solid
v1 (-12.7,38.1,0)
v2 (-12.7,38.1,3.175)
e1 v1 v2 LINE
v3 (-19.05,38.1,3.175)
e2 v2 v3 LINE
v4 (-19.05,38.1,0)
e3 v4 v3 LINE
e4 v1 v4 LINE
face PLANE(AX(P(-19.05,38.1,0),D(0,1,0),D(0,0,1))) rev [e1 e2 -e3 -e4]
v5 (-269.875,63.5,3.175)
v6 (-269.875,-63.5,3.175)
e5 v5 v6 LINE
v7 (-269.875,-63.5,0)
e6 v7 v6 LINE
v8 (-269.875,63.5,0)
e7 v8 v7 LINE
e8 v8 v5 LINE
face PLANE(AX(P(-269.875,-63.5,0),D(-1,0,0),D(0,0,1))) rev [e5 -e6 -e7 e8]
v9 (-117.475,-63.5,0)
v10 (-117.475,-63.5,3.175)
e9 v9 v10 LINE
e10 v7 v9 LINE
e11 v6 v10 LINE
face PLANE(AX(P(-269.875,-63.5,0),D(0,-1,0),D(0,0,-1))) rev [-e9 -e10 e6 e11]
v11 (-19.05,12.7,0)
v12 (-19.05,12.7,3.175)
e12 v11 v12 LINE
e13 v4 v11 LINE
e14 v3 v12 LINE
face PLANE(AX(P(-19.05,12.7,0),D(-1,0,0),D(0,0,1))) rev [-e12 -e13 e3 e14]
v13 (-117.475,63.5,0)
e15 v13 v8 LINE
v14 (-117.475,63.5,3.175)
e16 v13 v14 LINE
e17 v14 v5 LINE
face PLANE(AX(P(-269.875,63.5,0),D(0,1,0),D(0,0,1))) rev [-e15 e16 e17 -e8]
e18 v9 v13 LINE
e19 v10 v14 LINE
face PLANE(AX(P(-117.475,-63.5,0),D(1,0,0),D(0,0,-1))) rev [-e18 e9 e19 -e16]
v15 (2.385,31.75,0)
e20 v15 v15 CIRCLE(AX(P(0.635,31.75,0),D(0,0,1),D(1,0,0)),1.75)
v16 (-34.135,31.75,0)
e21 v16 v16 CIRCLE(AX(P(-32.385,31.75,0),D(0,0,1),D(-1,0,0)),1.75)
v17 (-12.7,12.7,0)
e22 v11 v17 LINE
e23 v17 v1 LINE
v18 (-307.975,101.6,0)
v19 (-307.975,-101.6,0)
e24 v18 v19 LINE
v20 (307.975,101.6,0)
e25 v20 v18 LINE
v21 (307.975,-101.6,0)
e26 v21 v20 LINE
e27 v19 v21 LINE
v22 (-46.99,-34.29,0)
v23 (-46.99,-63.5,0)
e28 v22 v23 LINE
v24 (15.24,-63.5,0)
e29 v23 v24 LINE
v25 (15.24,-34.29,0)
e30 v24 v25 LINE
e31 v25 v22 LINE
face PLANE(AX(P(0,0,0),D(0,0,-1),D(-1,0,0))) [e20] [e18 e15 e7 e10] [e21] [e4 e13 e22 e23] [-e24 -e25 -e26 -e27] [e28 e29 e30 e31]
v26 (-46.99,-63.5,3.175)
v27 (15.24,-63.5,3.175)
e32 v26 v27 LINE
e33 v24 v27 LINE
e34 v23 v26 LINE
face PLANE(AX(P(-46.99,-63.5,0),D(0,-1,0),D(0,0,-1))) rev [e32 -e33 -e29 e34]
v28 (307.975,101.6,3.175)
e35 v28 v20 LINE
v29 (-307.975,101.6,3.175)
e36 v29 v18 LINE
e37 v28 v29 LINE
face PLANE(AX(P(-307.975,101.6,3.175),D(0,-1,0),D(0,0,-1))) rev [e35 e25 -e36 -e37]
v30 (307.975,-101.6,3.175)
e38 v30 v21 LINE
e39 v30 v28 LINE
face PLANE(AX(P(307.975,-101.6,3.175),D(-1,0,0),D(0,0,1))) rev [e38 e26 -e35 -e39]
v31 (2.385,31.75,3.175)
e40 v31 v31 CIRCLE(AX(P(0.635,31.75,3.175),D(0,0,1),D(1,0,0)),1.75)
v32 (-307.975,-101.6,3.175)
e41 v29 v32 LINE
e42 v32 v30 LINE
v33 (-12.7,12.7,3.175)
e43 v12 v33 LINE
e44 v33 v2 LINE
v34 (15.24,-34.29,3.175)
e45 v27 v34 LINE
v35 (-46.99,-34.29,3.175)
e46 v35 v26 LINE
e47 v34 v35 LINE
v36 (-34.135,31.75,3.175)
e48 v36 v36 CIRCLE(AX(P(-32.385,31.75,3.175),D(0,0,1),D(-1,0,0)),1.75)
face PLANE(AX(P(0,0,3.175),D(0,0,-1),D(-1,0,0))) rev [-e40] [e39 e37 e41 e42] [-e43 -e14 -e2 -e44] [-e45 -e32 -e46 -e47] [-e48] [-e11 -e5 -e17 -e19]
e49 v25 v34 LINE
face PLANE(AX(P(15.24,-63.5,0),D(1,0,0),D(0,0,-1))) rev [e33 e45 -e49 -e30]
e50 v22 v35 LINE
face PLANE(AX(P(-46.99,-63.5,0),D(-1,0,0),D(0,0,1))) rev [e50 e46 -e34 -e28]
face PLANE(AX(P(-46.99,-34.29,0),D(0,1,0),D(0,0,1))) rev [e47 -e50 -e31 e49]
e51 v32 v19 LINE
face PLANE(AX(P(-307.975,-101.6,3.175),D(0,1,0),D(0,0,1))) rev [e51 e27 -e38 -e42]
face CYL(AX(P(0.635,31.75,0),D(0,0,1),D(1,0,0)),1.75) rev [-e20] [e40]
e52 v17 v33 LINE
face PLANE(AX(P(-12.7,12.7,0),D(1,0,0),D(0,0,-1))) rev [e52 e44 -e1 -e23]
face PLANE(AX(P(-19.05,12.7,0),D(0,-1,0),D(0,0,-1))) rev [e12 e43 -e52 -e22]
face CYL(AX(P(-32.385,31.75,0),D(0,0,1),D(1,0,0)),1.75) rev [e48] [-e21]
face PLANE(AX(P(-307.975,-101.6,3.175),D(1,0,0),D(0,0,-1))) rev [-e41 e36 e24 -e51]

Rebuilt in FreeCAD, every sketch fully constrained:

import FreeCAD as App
import Part
import Sketcher
from FreeCAD import Vector
Q = App.Units.Quantity

doc = App.newDocument("Part")
body = doc.addObject("PartDesign::Body", "Body")

# Sketch on XY plane
sketch1 = body.newObject("Sketcher::SketchObject", "Sketch")
sketch1.AttachmentSupport = (doc.getObject("XY_Plane"), [""])
sketch1.MapMode = "FlatFace"
sketch1.addGeometry(Part.LineSegment(Vector(-308, 102, 0), Vector(-308, -102, 0)), False)
sketch1.addGeometry(Part.LineSegment(Vector(-308, -102, 0), Vector(308, -102, 0)), False)
sketch1.addGeometry(Part.LineSegment(Vector(308, -102, 0), Vector(308, 102, 0)), False)
sketch1.addGeometry(Part.LineSegment(Vector(308, 102, 0), Vector(-308, 102, 0)), False)
sketch1.addConstraint(Sketcher.Constraint("Coincident", 0, 2, 1, 1))
sketch1.addConstraint(Sketcher.Constraint("Coincident", 1, 2, 2, 1))
sketch1.addConstraint(Sketcher.Constraint("Coincident", 2, 2, 3, 1))
sketch1.addConstraint(Sketcher.Constraint("Coincident", 3, 2, 0, 1))
sketch1.addConstraint(Sketcher.Constraint("Vertical", 0))
sketch1.addConstraint(Sketcher.Constraint("Horizontal", 1))
sketch1.addConstraint(Sketcher.Constraint("Vertical", 2))
sketch1.addConstraint(Sketcher.Constraint("Horizontal", 3))
sketch1.addConstraint(Sketcher.Constraint("Symmetric", 0, 2, 2, 2, -1, 1))
sketch1.addConstraint(Sketcher.Constraint("DistanceY", 0, 2, 0, 1, Q("8 in")))
sketch1.addConstraint(Sketcher.Constraint("DistanceX", 1, 1, 1, 2, Q("24.25 in")))
pad1 = body.newObject("PartDesign::Pad", "Pad")
pad1.Profile = sketch1
pad1.Length = Q("0.125 in")

# Sketch on XY plane
sketch2 = body.newObject("Sketcher::SketchObject", "Sketch001")
sketch2.AttachmentSupport = (doc.getObject("XY_Plane"), [""])
sketch2.MapMode = "FlatFace"
sketch2.AttachmentOffset = App.Placement(Vector(0, 0, 0.125 * 25.4), App.Rotation())
sketch2.addGeometry(Part.LineSegment(Vector(-270, 64, 0), Vector(-270, -64, 0)), False)
sketch2.addGeometry(Part.LineSegment(Vector(-270, -64, 0), Vector(-117, -64, 0)), False)
sketch2.addGeometry(Part.LineSegment(Vector(-117, -64, 0), Vector(-117, 64, 0)), False)
sketch2.addGeometry(Part.LineSegment(Vector(-117, 64, 0), Vector(-270, 64, 0)), False)
sketch2.addConstraint(Sketcher.Constraint("Coincident", 0, 2, 1, 1))
sketch2.addConstraint(Sketcher.Constraint("Coincident", 1, 2, 2, 1))
sketch2.addConstraint(Sketcher.Constraint("Coincident", 2, 2, 3, 1))
sketch2.addConstraint(Sketcher.Constraint("Coincident", 3, 2, 0, 1))
sketch2.addConstraint(Sketcher.Constraint("Vertical", 0))
sketch2.addConstraint(Sketcher.Constraint("Horizontal", 1))
sketch2.addConstraint(Sketcher.Constraint("Vertical", 2))
sketch2.addConstraint(Sketcher.Constraint("Horizontal", 3))
sketch2.addConstraint(Sketcher.Constraint("DistanceX", 1, 1, 1, 2, Q("6 in")))
sketch2.addConstraint(Sketcher.Constraint("DistanceY", 0, 2, 0, 1, Q("5 in")))
sketch2.addConstraint(Sketcher.Constraint("DistanceY", 0, 2, -1, 1, Q("2.5 in")))
sketch2.addConstraint(Sketcher.Constraint("DistanceX", 0, 2, -1, 1, Q("10.625 in")))
pocket1 = body.newObject("PartDesign::Pocket", "Pocket")
pocket1.Profile = sketch2
pocket1.Type = "ThroughAll"

# Sketch on XY plane
sketch3 = body.newObject("Sketcher::SketchObject", "Sketch002")
sketch3.AttachmentSupport = (doc.getObject("XY_Plane"), [""])
sketch3.MapMode = "FlatFace"
sketch3.AttachmentOffset = App.Placement(Vector(0, 0, 0.125 * 25.4), App.Rotation())
sketch3.addGeometry(Part.LineSegment(Vector(-19, 38, 0), Vector(-19, 13, 0)), False)
sketch3.addGeometry(Part.LineSegment(Vector(-19, 13, 0), Vector(-13, 13, 0)), False)
sketch3.addGeometry(Part.LineSegment(Vector(-13, 13, 0), Vector(-13, 38, 0)), False)
sketch3.addGeometry(Part.LineSegment(Vector(-13, 38, 0), Vector(-19, 38, 0)), False)
sketch3.addConstraint(Sketcher.Constraint("Coincident", 0, 2, 1, 1))
sketch3.addConstraint(Sketcher.Constraint("Coincident", 1, 2, 2, 1))
sketch3.addConstraint(Sketcher.Constraint("Coincident", 2, 2, 3, 1))
sketch3.addConstraint(Sketcher.Constraint("Coincident", 3, 2, 0, 1))
sketch3.addConstraint(Sketcher.Constraint("Vertical", 0))
sketch3.addConstraint(Sketcher.Constraint("Horizontal", 1))
sketch3.addConstraint(Sketcher.Constraint("Vertical", 2))
sketch3.addConstraint(Sketcher.Constraint("Horizontal", 3))
sketch3.addConstraint(Sketcher.Constraint("DistanceY", 0, 2, 0, 1, Q("1 in")))
sketch3.addConstraint(Sketcher.Constraint("DistanceX", 1, 1, 1, 2, Q("0.25 in")))
sketch3.addConstraint(Sketcher.Constraint("DistanceY", -1, 1, 0, 2, Q("0.5 in")))
sketch3.addConstraint(Sketcher.Constraint("DistanceX", 1, 2, -1, 1, Q("0.5 in")))
pocket2 = body.newObject("PartDesign::Pocket", "Pocket001")
pocket2.Profile = sketch3
pocket2.Type = "ThroughAll"

# Sketch on XY plane
sketch4 = body.newObject("Sketcher::SketchObject", "Sketch003")
sketch4.AttachmentSupport = (doc.getObject("XY_Plane"), [""])
sketch4.MapMode = "FlatFace"
sketch4.AttachmentOffset = App.Placement(Vector(0, 0, 0.125 * 25.4), App.Rotation())
sketch4.addGeometry(Part.Circle(Vector(0.6, 31.8, 0), Vector(0, 0, 1), 1.8), False)
sketch4.addGeometry(Part.Circle(Vector(-32.4, 31.8, 0), Vector(0, 0, 1), 1.8), False)
sketch4.addConstraint(Sketcher.Constraint("Equal", 0, 1))
sketch4.addConstraint(Sketcher.Constraint("Horizontal", 0, 3, 1, 3))
sketch4.addConstraint(Sketcher.Constraint("DistanceX", 1, 3, 0, 3, Q("1.3 in")))
sketch4.addConstraint(Sketcher.Constraint("Diameter", 0, 3.5))
sketch4.addConstraint(Sketcher.Constraint("DistanceY", -1, 1, 0, 3, Q("1.25 in")))
sketch4.addConstraint(Sketcher.Constraint("DistanceX", -1, 1, 0, 3, Q("0.025 in")))
pocket3 = body.newObject("PartDesign::Pocket", "Pocket002")
pocket3.Profile = sketch4
pocket3.Type = "ThroughAll"

# Sketch on XY plane
sketch5 = body.newObject("Sketcher::SketchObject", "Sketch004")
sketch5.AttachmentSupport = (doc.getObject("XY_Plane"), [""])
sketch5.MapMode = "FlatFace"
sketch5.AttachmentOffset = App.Placement(Vector(0, 0, 0.125 * 25.4), App.Rotation())
sketch5.addGeometry(Part.LineSegment(Vector(-47, -34, 0), Vector(-47, -64, 0)), False)
sketch5.addGeometry(Part.LineSegment(Vector(-47, -64, 0), Vector(15, -64, 0)), False)
sketch5.addGeometry(Part.LineSegment(Vector(15, -64, 0), Vector(15, -34, 0)), False)
sketch5.addGeometry(Part.LineSegment(Vector(15, -34, 0), Vector(-47, -34, 0)), False)
sketch5.addConstraint(Sketcher.Constraint("Coincident", 0, 2, 1, 1))
sketch5.addConstraint(Sketcher.Constraint("Coincident", 1, 2, 2, 1))
sketch5.addConstraint(Sketcher.Constraint("Coincident", 2, 2, 3, 1))
sketch5.addConstraint(Sketcher.Constraint("Coincident", 3, 2, 0, 1))
sketch5.addConstraint(Sketcher.Constraint("Vertical", 0))
sketch5.addConstraint(Sketcher.Constraint("Horizontal", 1))
sketch5.addConstraint(Sketcher.Constraint("Vertical", 2))
sketch5.addConstraint(Sketcher.Constraint("Horizontal", 3))
sketch5.addConstraint(Sketcher.Constraint("DistanceX", 1, 1, 1, 2, Q("2.45 in")))
sketch5.addConstraint(Sketcher.Constraint("DistanceY", 0, 2, 0, 1, Q("1.15 in")))
sketch5.addConstraint(Sketcher.Constraint("DistanceY", 0, 2, -1, 1, Q("2.5 in")))
sketch5.addConstraint(Sketcher.Constraint("DistanceX", -1, 1, 1, 2, Q("0.6 in")))
pocket4 = body.newObject("PartDesign::Pocket", "Pocket003")
pocket4.Profile = sketch5
pocket4.Type = "ThroughAll"

doc.recompute()
